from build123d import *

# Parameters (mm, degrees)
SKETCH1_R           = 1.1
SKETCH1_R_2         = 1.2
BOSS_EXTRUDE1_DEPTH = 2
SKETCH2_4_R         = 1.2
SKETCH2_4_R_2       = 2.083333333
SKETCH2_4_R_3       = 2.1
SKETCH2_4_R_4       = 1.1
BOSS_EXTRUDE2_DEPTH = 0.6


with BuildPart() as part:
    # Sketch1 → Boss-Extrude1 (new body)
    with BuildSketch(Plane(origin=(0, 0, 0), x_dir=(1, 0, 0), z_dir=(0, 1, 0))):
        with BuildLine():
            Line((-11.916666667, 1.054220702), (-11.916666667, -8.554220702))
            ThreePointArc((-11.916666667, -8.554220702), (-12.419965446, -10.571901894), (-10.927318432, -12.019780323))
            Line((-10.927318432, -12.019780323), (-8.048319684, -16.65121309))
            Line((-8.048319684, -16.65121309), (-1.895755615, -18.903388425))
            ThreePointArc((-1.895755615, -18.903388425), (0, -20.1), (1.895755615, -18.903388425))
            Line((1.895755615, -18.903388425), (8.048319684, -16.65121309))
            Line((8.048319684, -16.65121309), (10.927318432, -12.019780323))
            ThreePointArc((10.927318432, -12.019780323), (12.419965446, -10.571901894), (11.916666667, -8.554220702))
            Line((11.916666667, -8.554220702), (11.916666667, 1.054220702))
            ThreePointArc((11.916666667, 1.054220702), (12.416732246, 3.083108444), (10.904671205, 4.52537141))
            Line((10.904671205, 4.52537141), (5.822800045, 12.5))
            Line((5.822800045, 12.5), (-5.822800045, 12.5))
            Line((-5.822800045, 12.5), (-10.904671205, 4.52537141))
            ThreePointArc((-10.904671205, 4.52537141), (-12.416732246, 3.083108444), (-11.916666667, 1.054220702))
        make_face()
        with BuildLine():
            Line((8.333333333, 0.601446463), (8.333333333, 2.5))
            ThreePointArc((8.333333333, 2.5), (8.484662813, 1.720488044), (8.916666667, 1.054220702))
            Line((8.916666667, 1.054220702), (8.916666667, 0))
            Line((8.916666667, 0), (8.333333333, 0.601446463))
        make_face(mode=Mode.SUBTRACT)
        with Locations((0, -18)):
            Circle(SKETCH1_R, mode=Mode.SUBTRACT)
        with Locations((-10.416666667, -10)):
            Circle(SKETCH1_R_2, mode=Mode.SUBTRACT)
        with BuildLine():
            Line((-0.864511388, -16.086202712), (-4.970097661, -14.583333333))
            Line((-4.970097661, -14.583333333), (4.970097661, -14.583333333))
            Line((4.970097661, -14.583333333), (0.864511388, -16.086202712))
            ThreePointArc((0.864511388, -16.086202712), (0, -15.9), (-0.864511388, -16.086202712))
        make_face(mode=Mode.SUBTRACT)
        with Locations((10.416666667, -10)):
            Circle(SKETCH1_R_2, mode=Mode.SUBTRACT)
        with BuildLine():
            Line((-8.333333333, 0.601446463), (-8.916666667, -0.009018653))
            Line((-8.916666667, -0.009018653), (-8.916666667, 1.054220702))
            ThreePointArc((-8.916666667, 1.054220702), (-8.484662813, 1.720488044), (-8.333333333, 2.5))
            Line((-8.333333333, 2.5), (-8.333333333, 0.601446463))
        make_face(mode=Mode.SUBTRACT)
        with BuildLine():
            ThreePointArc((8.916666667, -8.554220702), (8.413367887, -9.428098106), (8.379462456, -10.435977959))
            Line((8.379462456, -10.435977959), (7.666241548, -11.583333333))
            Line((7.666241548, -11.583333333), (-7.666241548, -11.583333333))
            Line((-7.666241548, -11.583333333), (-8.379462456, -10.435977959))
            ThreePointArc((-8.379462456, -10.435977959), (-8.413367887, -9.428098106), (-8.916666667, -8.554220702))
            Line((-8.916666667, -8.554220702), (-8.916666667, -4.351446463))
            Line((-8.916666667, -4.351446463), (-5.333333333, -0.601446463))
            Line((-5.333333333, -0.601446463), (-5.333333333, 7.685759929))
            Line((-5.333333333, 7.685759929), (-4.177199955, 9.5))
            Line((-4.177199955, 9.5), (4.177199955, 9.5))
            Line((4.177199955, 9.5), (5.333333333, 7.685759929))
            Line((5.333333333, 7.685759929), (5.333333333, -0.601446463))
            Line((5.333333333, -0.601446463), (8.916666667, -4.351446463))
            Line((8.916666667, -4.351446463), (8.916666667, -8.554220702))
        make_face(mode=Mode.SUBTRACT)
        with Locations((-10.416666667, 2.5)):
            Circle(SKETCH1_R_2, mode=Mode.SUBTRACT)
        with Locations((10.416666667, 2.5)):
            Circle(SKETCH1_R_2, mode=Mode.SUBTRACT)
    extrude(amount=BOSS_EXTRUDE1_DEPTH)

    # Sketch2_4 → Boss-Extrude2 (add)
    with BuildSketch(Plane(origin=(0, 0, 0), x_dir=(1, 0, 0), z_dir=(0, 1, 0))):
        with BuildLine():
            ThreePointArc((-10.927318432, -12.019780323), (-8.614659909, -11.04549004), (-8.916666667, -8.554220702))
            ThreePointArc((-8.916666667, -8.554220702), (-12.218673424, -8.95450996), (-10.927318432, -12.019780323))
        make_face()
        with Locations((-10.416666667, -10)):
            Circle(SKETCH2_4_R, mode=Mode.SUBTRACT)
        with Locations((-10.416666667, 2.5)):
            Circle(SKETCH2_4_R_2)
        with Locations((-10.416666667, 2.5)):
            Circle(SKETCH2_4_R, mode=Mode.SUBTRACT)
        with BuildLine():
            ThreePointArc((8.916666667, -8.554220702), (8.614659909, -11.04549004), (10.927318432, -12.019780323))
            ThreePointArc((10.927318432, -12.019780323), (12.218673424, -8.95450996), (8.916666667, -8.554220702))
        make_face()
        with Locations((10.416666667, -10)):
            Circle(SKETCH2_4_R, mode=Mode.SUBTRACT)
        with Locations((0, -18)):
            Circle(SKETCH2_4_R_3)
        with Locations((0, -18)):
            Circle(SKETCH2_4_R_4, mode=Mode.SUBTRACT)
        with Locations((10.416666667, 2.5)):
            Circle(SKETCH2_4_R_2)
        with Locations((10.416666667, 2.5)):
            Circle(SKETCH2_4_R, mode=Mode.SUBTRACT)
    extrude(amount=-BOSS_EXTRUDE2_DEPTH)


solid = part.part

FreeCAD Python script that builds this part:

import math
import FreeCAD as App
import Part
import Sketcher

doc = App.newDocument("Part")
body = doc.addObject("PartDesign::Body", "Body")

# Sketch on XZ plane
sketch1 = doc.addObject("Sketcher::SketchObject", "Sketch")
body.addObject(sketch1)
sketch1.AttachmentSupport = (doc.XZ_Plane, [""])
sketch1.MapMode = "FlatFace"
sketch1.addGeometry(Part.LineSegment(App.Vector(-11.916667, -1.054221, 0), App.Vector(-11.916667, 8.554221, 0)), False)
sketch1.addGeometry(Part.ArcOfCircle(Part.Circle(App.Vector(-10.416667, 10, 0), App.Vector(0, 0, 1), 2.083333), math.radians(104.188503), math.radians(223.94552)), False)
sketch1.addGeometry(Part.LineSegment(App.Vector(-10.927318, 12.01978, 0), App.Vector(-8.04832, 16.651213, 0)), False)
sketch1.addGeometry(Part.LineSegment(App.Vector(-8.04832, 16.651213, 0), App.Vector(-1.895756, 18.903388, 0)), False)
sketch1.addGeometry(Part.ArcOfCircle(Part.Circle(App.Vector(0, 18, 0), App.Vector(0, 0, 1), 2.1), math.radians(25.479299), math.radians(154.520701)), False)
sketch1.addGeometry(Part.LineSegment(App.Vector(1.895756, 18.903388, 0), App.Vector(8.04832, 16.651213, 0)), False)
sketch1.addGeometry(Part.LineSegment(App.Vector(8.04832, 16.651213, 0), App.Vector(10.927318, 12.01978, 0)), False)
sketch1.addGeometry(Part.ArcOfCircle(Part.Circle(App.Vector(10.416667, 10, 0), App.Vector(0, 0, 1), 2.083333), math.radians(-43.94552), math.radians(75.811497)), False)
sketch1.addGeometry(Part.LineSegment(App.Vector(11.916667, 8.554221, 0), App.Vector(11.916667, -1.054221, 0)), False)
sketch1.addGeometry(Part.ArcOfCircle(Part.Circle(App.Vector(10.416667, -2.5, 0), App.Vector(0, 0, 1), 2.083333), math.radians(-76.453044), math.radians(43.94552)), False)
sketch1.addGeometry(Part.LineSegment(App.Vector(10.904671, -4.525371, 0), App.Vector(5.8228, -12.5, 0)), False)
sketch1.addGeometry(Part.LineSegment(App.Vector(5.8228, -12.5, 0), App.Vector(-5.8228, -12.5, 0)), False)
sketch1.addGeometry(Part.LineSegment(App.Vector(-5.8228, -12.5, 0), App.Vector(-10.904671, -4.525371, 0)), False)
sketch1.addGeometry(Part.ArcOfCircle(Part.Circle(App.Vector(-10.416667, -2.5, 0), App.Vector(0, 0, 1), 2.083333), math.radians(136.05448), math.radians(256.453044)), False)
sketch1.addGeometry(Part.Circle(App.Vector(-10.416667, 10, 0), App.Vector(0, 0, 1), 1.2), False)
sketch1.addGeometry(Part.Circle(App.Vector(0, 18, 0), App.Vector(0, 0, 1), 1.1), False)
sketch1.addGeometry(Part.ArcOfCircle(Part.Circle(App.Vector(0, 18, 0), App.Vector(0, 0, 1), 2.1), math.radians(-114.309916), math.radians(-65.690084)), False)
sketch1.addGeometry(Part.LineSegment(App.Vector(-0.864511, 16.086203, 0), App.Vector(-4.970098, 14.583333, 0)), False)
sketch1.addGeometry(Part.LineSegment(App.Vector(-4.970098, 14.583333, 0), App.Vector(4.970098, 14.583333, 0)), False)
sketch1.addGeometry(Part.LineSegment(App.Vector(4.970098, 14.583333, 0), App.Vector(0.864511, 16.086203, 0)), False)
sketch1.addGeometry(Part.Circle(App.Vector(10.416667, 10, 0), App.Vector(0, 0, 1), 1.2), False)
sketch1.addGeometry(Part.LineSegment(App.Vector(-8.333333, -2.5, 0), App.Vector(-8.333333, -0.601446, 0)), False)
sketch1.addGeometry(Part.LineSegment(App.Vector(-8.333333, -0.601446, 0), App.Vector(-8.916667, 0.009019, 0)), False)
sketch1.addGeometry(Part.LineSegment(App.Vector(-8.916667, 0.009019, 0), App.Vector(-8.916667, -1.054221, 0)), False)
sketch1.addGeometry(Part.ArcOfCircle(Part.Circle(App.Vector(-10.416667, -2.5, 0), App.Vector(0, 0, 1), 2.083333), math.radians(0), math.radians(43.94552)), False)
sketch1.addGeometry(Part.Circle(App.Vector(-10.416667, -2.5, 0), App.Vector(0, 0, 1), 1.2), False)
sketch1.addGeometry(Part.LineSegment(App.Vector(8.916667, 4.351446, 0), App.Vector(8.916667, 8.554221, 0)), False)
sketch1.addGeometry(Part.ArcOfCircle(Part.Circle(App.Vector(10.416667, 10, 0), App.Vector(0, 0, 1), 2.083333), math.radians(167.920458), math.radians(223.94552)), False)
sketch1.addGeometry(Part.LineSegment(App.Vector(8.379462, 10.435978, 0), App.Vector(7.666242, 11.583333, 0)), False)
sketch1.addGeometry(Part.LineSegment(App.Vector(7.666242, 11.583333, 0), App.Vector(-7.666242, 11.583333, 0)), False)
sketch1.addGeometry(Part.LineSegment(App.Vector(-7.666242, 11.583333, 0), App.Vector(-8.379462, 10.435978, 0)), False)
sketch1.addGeometry(Part.ArcOfCircle(Part.Circle(App.Vector(-10.416667, 10, 0), App.Vector(0, 0, 1), 2.083333), math.radians(-43.94552), math.radians(12.079542)), False)
sketch1.addGeometry(Part.LineSegment(App.Vector(-8.916667, 8.554221, 0), App.Vector(-8.916667, 4.351446, 0)), False)
sketch1.addGeometry(Part.LineSegment(App.Vector(-8.916667, 4.351446, 0), App.Vector(-5.333333, 0.601446, 0)), False)
sketch1.addGeometry(Part.LineSegment(App.Vector(-5.333333, 0.601446, 0), App.Vector(-5.333333, -7.68576, 0)), False)
sketch1.addGeometry(Part.LineSegment(App.Vector(-5.333333, -7.68576, 0), App.Vector(-4.1772, -9.5, 0)), False)
sketch1.addGeometry(Part.LineSegment(App.Vector(-4.1772, -9.5, 0), App.Vector(4.1772, -9.5, 0)), False)
sketch1.addGeometry(Part.LineSegment(App.Vector(4.1772, -9.5, 0), App.Vector(5.333333, -7.68576, 0)), False)
sketch1.addGeometry(Part.LineSegment(App.Vector(5.333333, -7.68576, 0), App.Vector(5.333333, 0.601446, 0)), False)
sketch1.addGeometry(Part.LineSegment(App.Vector(5.333333, 0.601446, 0), App.Vector(8.916667, 4.351446, 0)), False)
sketch1.addGeometry(Part.LineSegment(App.Vector(8.916667, 0, 0), App.Vector(8.333333, -0.601446, 0)), False)
sketch1.addGeometry(Part.LineSegment(App.Vector(8.333333, -0.601446, 0), App.Vector(8.333333, -2.5, 0)), False)
sketch1.addGeometry(Part.ArcOfCircle(Part.Circle(App.Vector(10.416667, -2.5, 0), App.Vector(0, 0, 1), 2.083333), math.radians(136.05448), math.radians(180)), False)
sketch1.addGeometry(Part.LineSegment(App.Vector(8.916667, -1.054221, 0), App.Vector(8.916667, 0, 0)), False)
sketch1.addGeometry(Part.Circle(App.Vector(10.416667, -2.5, 0), App.Vector(0, 0, 1), 1.2), False)
sketch1.addConstraint(Sketcher.Constraint("Coincident", 0, 2, 1, 2))
sketch1.addConstraint(Sketcher.Constraint("Coincident", 1, 1, 2, 1))
sketch1.addConstraint(Sketcher.Constraint("Coincident", 2, 2, 3, 1))
sketch1.addConstraint(Sketcher.Constraint("Coincident", 3, 2, 4, 2))
sketch1.addConstraint(Sketcher.Constraint("Coincident", 4, 1, 5, 1))
sketch1.addConstraint(Sketcher.Constraint("Coincident", 5, 2, 6, 1))
sketch1.addConstraint(Sketcher.Constraint("Coincident", 6, 2, 7, 2))
sketch1.addConstraint(Sketcher.Constraint("Coincident", 7, 1, 8, 1))
sketch1.addConstraint(Sketcher.Constraint("Coincident", 8, 2, 9, 2))
sketch1.addConstraint(Sketcher.Constraint("Coincident", 9, 1, 10, 1))
sketch1.addConstraint(Sketcher.Constraint("Coincident", 10, 2, 11, 1))
sketch1.addConstraint(Sketcher.Constraint("Coincident", 11, 2, 12, 1))
sketch1.addConstraint(Sketcher.Constraint("Coincident", 12, 2, 13, 2))
sketch1.addConstraint(Sketcher.Constraint("Coincident", 13, 1, 0, 1))
sketch1.addConstraint(Sketcher.Constraint("Coincident", 16, 1, 17, 1))
sketch1.addConstraint(Sketcher.Constraint("Coincident", 17, 2, 18, 1))
sketch1.addConstraint(Sketcher.Constraint("Coincident", 18, 2, 19, 1))
sketch1.addConstraint(Sketcher.Constraint("Coincident", 19, 2, 16, 2))
sketch1.addConstraint(Sketcher.Constraint("Coincident", 21, 2, 22, 1))
sketch1.addConstraint(Sketcher.Constraint("Coincident", 22, 2, 23, 1))
sketch1.addConstraint(Sketcher.Constraint("Coincident", 23, 2, 24, 2))
sketch1.addConstraint(Sketcher.Constraint("Tangent", 24, 1, 21, 1))
sketch1.addConstraint(Sketcher.Constraint("Coincident", 26, 2, 27, 2))
sketch1.addConstraint(Sketcher.Constraint("Coincident", 27, 1, 28, 1))
sketch1.addConstraint(Sketcher.Constraint("Coincident", 28, 2, 29, 1))
sketch1.addConstraint(Sketcher.Constraint("Coincident", 29, 2, 30, 1))
sketch1.addConstraint(Sketcher.Constraint("Coincident", 30, 2, 31, 2))
sketch1.addConstraint(Sketcher.Constraint("Coincident", 31, 1, 32, 1))
sketch1.addConstraint(Sketcher.Constraint("Coincident", 32, 2, 33, 1))
sketch1.addConstraint(Sketcher.Constraint("Coincident", 33, 2, 34, 1))
sketch1.addConstraint(Sketcher.Constraint("Coincident", 34, 2, 35, 1))
sketch1.addConstraint(Sketcher.Constraint("Coincident", 35, 2, 36, 1))
sketch1.addConstraint(Sketcher.Constraint("Coincident", 36, 2, 37, 1))
sketch1.addConstraint(Sketcher.Constraint("Coincident", 37, 2, 38, 1))
sketch1.addConstraint(Sketcher.Constraint("Coincident", 38, 2, 39, 1))
sketch1.addConstraint(Sketcher.Constraint("Coincident", 39, 2, 26, 1))
sketch1.addConstraint(Sketcher.Constraint("Coincident", 40, 2, 41, 1))
sketch1.addConstraint(Sketcher.Constraint("Tangent", 41, 2, 42, 2))
sketch1.addConstraint(Sketcher.Constraint("Coincident", 42, 1, 43, 1))
sketch1.addConstraint(Sketcher.Constraint("Coincident", 43, 2, 40, 1))
sketch1.addConstraint(Sketcher.Constraint("Vertical", 0))
sketch1.addConstraint(Sketcher.Constraint("Vertical", 8))
sketch1.addConstraint(Sketcher.Constraint("Horizontal", 11))
sketch1.addConstraint(Sketcher.Constraint("Horizontal", 18))
sketch1.addConstraint(Sketcher.Constraint("Vertical", 21))
sketch1.addConstraint(Sketcher.Constraint("Vertical", 23))
sketch1.addConstraint(Sketcher.Constraint("Vertical", 26))
sketch1.addConstraint(Sketcher.Constraint("Horizontal", 29))
sketch1.addConstraint(Sketcher.Constraint("Vertical", 32))
sketch1.addConstraint(Sketcher.Constraint("Vertical", 34))
sketch1.addConstraint(Sketcher.Constraint("Horizontal", 36))
sketch1.addConstraint(Sketcher.Constraint("Vertical", 38))
sketch1.addConstraint(Sketcher.Constraint("Vertical", 41))
sketch1.addConstraint(Sketcher.Constraint("Vertical", 43))
sketch1.addConstraint(Sketcher.Constraint("Coincident", 14, 3, 1, 3))
sketch1.addConstraint(Sketcher.Constraint("Coincident", 15, 3, 4, 3))
sketch1.addConstraint(Sketcher.Constraint("Coincident", 16, 3, 4, 3))
sketch1.addConstraint(Sketcher.Constraint("Coincident", 20, 3, 7, 3))
sketch1.addConstraint(Sketcher.Constraint("Coincident", 24, 3, 13, 3))
sketch1.addConstraint(Sketcher.Constraint("Coincident", 25, 3, 13, 3))
sketch1.addConstraint(Sketcher.Constraint("Coincident", 27, 3, 7, 3))
sketch1.addConstraint(Sketcher.Constraint("Coincident", 31, 3, 1, 3))
sketch1.addConstraint(Sketcher.Constraint("Coincident", 42, 3, 9, 3))
sketch1.addConstraint(Sketcher.Constraint("Coincident", 44, 3, 9, 3))
sketch1.addConstraint(Sketcher.Constraint("Equal", 1, 7))
sketch1.addConstraint(Sketcher.Constraint("Equal", 7, 9))
sketch1.addConstraint(Sketcher.Constraint("Equal", 9, 13))
sketch1.addConstraint(Sketcher.Constraint("Equal", 4, 16))
sketch1.addConstraint(Sketcher.Constraint("Equal", 14, 20))
sketch1.addConstraint(Sketcher.Constraint("Equal", 13, 24))
sketch1.addConstraint(Sketcher.Constraint("Equal", 20, 25))
sketch1.addConstraint(Sketcher.Constraint("Equal", 24, 27))
sketch1.addConstraint(Sketcher.Constraint("Equal", 27, 31))
sketch1.addConstraint(Sketcher.Constraint("Equal", 31, 42))
sketch1.addConstraint(Sketcher.Constraint("Equal", 25, 44))
sketch1.addConstraint(Sketcher.Constraint("Symmetric", 1, 3, 7, 3, -2))
sketch1.addConstraint(Sketcher.Constraint("Symmetric", 9, 3, 13, 3, -2))
sketch1.addConstraint(Sketcher.Constraint("Symmetric", 3, 2, 4, 1, -2))
sketch1.addConstraint(Sketcher.Constraint("Symmetric", 2, 2, 5, 2, -2))
sketch1.addConstraint(Sketcher.Constraint("Symmetric", 34, 2, 37, 2, -2))
sketch1.addConstraint(Sketcher.Constraint("Symmetric", 32, 2, 39, 2, -2))
sketch1.addConstraint(Sketcher.Constraint("PointOnObject", 43, 2, -1))
sketch1.addConstraint(Sketcher.Constraint("Parallel", 3, 17))
sketch1.addConstraint(Sketcher.Constraint("Parallel", 5, 19))
sketch1.addConstraint(Sketcher.Constraint("Parallel", 6, 28))
sketch1.addConstraint(Sketcher.Constraint("Parallel", 2, 30))
sketch1.addConstraint(Sketcher.Constraint("Parallel", 22, 33))
sketch1.addConstraint(Sketcher.Constraint("Parallel", 12, 35))
sketch1.addConstraint(Sketcher.Constraint("Parallel", 10, 37))
sketch1.addConstraint(Sketcher.Constraint("Horizontal", 1, 1, 6, 2))
sketch1.addConstraint(Sketcher.Constraint("Horizontal", 0, 2, 7, 1))
sketch1.addConstraint(Sketcher.Constraint("Horizontal", 9, 1, 12, 2))
sketch1.addConstraint(Sketcher.Constraint("Horizontal", 16, 1, 19, 2))
sketch1.addConstraint(Sketcher.Constraint("Horizontal", 13, 1, 23, 2))
sketch1.addConstraint(Sketcher.Constraint("Horizontal", 7, 1, 26, 2))
sketch1.addConstraint(Sketcher.Constraint("Horizontal", 27, 1, 30, 2))
sketch1.addConstraint(Sketcher.Constraint("Horizontal", 33, 2, 38, 2))
sketch1.addConstraint(Sketcher.Constraint("Horizontal", 21, 2, 40, 2))
sketch1.addConstraint(Sketcher.Constraint("Horizontal", 23, 2, 42, 1))
sketch1.addConstraint(Sketcher.Constraint("Vertical", 7, 3, 9, 3))
sketch1.addConstraint(Sketcher.Constraint("Equal", 10, 12))
sketch1.addConstraint(Sketcher.Constraint("Diameter", 14, 2.4))
sketch1.addConstraint(Sketcher.Constraint("Diameter", 15, 2.2))
sketch1.addConstraint(Sketcher.Constraint("Radius", 4, 2.1))
sketch1.addConstraint(Sketcher.Constraint("DistanceY", -1, 1, 1, 3, 10.0))
sketch1.addConstraint(Sketcher.Constraint("DistanceY", -1, 1, 4, 3, 18.0))
sketch1.addConstraint(Sketcher.Constraint("DistanceY", 10, 2, 42, 3, 10.0))
sketch1.addConstraint(Sketcher.Constraint("DistanceX", 13, 1, 22, 2, 3.0))
sketch1.addConstraint(Sketcher.Constraint("DistanceY", 29, 2, 17, 2, 3.0))
sketch1.addConstraint(Sketcher.Constraint("DistanceX", 21, 2, 33, 2, 3.0))
sketch1.addConstraint(Sketcher.Constraint("DistanceY", 11, 2, 35, 2, 3.0))
sketch1.addConstraint(Sketcher.Constraint("DistanceY", 9, 3, -1, 1, 2.5))
sketch1.addConstraint(Sketcher.Constraint("DistanceY", 33, 2, 32, 2, 3.75))
sketch1.addConstraint(Sketcher.Constraint("DistanceX", 11, 2, 11, 1, 11.6456))
sketch1.addConstraint(Sketcher.Constraint("DistanceX", 36, 1, 36, 2, 8.3544))
sketch1.addConstraint(Sketcher.Constraint("Radius", 1, 2.083333))
sketch1.addConstraint(Sketcher.Constraint("DistanceX", 1, 1, 2, 2, 2.878999))
sketch1.addConstraint(Sketcher.Constraint("DistanceY", 23, 2, 23, 1, 1.063239))
sketch1.addConstraint(Sketcher.Constraint("Distance", 2, 5.45333))
sketch1.addConstraint(Sketcher.Constraint("Distance", 3, 6.551819))
sketch1.addConstraint(Sketcher.Constraint("Distance", 10, 9.456221))
sketch1.addConstraint(Sketcher.Constraint("Distance", 17, 4.372008))
sketch1.addConstraint(Sketcher.Constraint("DistanceX", 18, 1, 18, 2, 9.940195))
sketch1.addConstraint(Sketcher.Constraint("DistanceX", 29, 2, 29, 1, 15.332483))
sketch1.addConstraint(Sketcher.Constraint("DistanceY", 26, 1, 26, 2, 4.202774))
sketch1.addConstraint(Sketcher.Constraint("DistanceY", 34, 2, 34, 1, 8.287206))
sketch1.addConstraint(Sketcher.Constraint("DistanceX", 1, 1, -1, 1, 10.927318))
pad1 = doc.addObject("PartDesign::Pad", "Pad")
body.addObject(pad1)
pad1.Profile = sketch1
pad1.Length = 2
pad1.Reversed = True

# Sketch on XZ plane
sketch2 = doc.addObject("Sketcher::SketchObject", "Sketch001")
body.addObject(sketch2)
sketch2.AttachmentSupport = (doc.XZ_Plane, [""])
sketch2.MapMode = "FlatFace"
sketch2.addGeometry(Part.ArcOfCircle(Part.Circle(App.Vector(-10.416667, 10, 0), App.Vector(0, 0, 1), 2.083333), math.radians(-43.94552), math.radians(104.188503)), False)
sketch2.addGeometry(Part.ArcOfCircle(Part.Circle(App.Vector(-10.416667, 10, 0), App.Vector(0, 0, 1), 2.083333), math.radians(104.188503), math.radians(316.05448)), False)
sketch2.addGeometry(Part.Circle(App.Vector(-10.416667, 10, 0), App.Vector(0, 0, 1), 1.2), False)
sketch2.addGeometry(Part.Circle(App.Vector(-10.416667, -2.5, 0), App.Vector(0, 0, 1), 2.083333), False)
sketch2.addGeometry(Part.Circle(App.Vector(-10.416667, -2.5, 0), App.Vector(0, 0, 1), 1.2), False)
sketch2.addGeometry(Part.ArcOfCircle(Part.Circle(App.Vector(10.416667, 10, 0), App.Vector(0, 0, 1), 2.083333), math.radians(75.811497), math.radians(223.94552)), False)
sketch2.addGeometry(Part.ArcOfCircle(Part.Circle(App.Vector(10.416667, 10, 0), App.Vector(0, 0, 1), 2.083333), math.radians(-136.05448), math.radians(75.811497)), False)
sketch2.addGeometry(Part.Circle(App.Vector(10.416667, 10, 0), App.Vector(0, 0, 1), 1.2), False)
sketch2.addGeometry(Part.Circle(App.Vector(0, 18, 0), App.Vector(0, 0, 1), 2.1), False)
sketch2.addGeometry(Part.Circle(App.Vector(0, 18, 0), App.Vector(0, 0, 1), 1.1), False)
sketch2.addGeometry(Part.Circle(App.Vector(10.416667, -2.5, 0), App.Vector(0, 0, 1), 2.083333), False)
sketch2.addGeometry(Part.Circle(App.Vector(10.416667, -2.5, 0), App.Vector(0, 0, 1), 1.2), False)
sketch2.addConstraint(Sketcher.Constraint("Tangent", 0, 1, 1, 2))
sketch2.addConstraint(Sketcher.Constraint("Coincident", 1, 1, 0, 2))
sketch2.addConstraint(Sketcher.Constraint("Tangent", 5, 1, 6, 2))
sketch2.addConstraint(Sketcher.Constraint("Coincident", 6, 1, 5, 2))
sketch2.addConstraint(Sketcher.Constraint("Coincident", 2, 3, 0, 3))
sketch2.addConstraint(Sketcher.Constraint("Coincident", 4, 3, 3, 3))
sketch2.addConstraint(Sketcher.Constraint("Coincident", 7, 3, 5, 3))
sketch2.addConstraint(Sketcher.Constraint("Coincident", 9, 3, 8, 3))
sketch2.addConstraint(Sketcher.Constraint("Coincident", 11, 3, 10, 3))
sketch2.addConstraint(Sketcher.Constraint("Equal", 1, 3))
sketch2.addConstraint(Sketcher.Constraint("Equal", 2, 4))
sketch2.addConstraint(Sketcher.Constraint("Equal", 3, 5))
sketch2.addConstraint(Sketcher.Constraint("Equal", 4, 7))
sketch2.addConstraint(Sketcher.Constraint("Equal", 6, 10))
sketch2.addConstraint(Sketcher.Constraint("Equal", 7, 11))
sketch2.addConstraint(Sketcher.Constraint("Symmetric", 0, 3, 5, 3, -2))
sketch2.addConstraint(Sketcher.Constraint("Symmetric", 3, 3, 10, 3, -2))
sketch2.addConstraint(Sketcher.Constraint("PointOnObject", 8, 3, -2))
sketch2.addConstraint(Sketcher.Constraint("Horizontal", 1, 1, 5, 1))
sketch2.addConstraint(Sketcher.Constraint("Horizontal", 0, 1, 6, 1))
sketch2.addConstraint(Sketcher.Constraint("Vertical", 2, 3, 3, 3))
sketch2.addConstraint(Sketcher.Constraint("Diameter", 2, 2.4))
sketch2.addConstraint(Sketcher.Constraint("Diameter", 8, 4.2))
sketch2.addConstraint(Sketcher.Constraint("Diameter", 9, 2.2))
sketch2.addConstraint(Sketcher.Constraint("DistanceY", -1, 1, 0, 3, 10.0))
sketch2.addConstraint(Sketcher.Constraint("DistanceY", -1, 1, 8, 3, 18.0))
sketch2.addConstraint(Sketcher.Constraint("DistanceY", 3, 3, -1, 1, 2.5))
sketch2.addConstraint(Sketcher.Constraint("DistanceX", 0, 3, 0, 1, 1.5))
sketch2.addConstraint(Sketcher.Constraint("Diameter", 3, 4.166667))
sketch2.addConstraint(Sketcher.Constraint("DistanceX", 1, 1, -1, 1, 10.927318))
sketch2.addConstraint(Sketcher.Constraint("DistanceY", -1, 1, 1, 1, 12.01978))
pad2 = doc.addObject("PartDesign::Pad", "Pad001")
body.addObject(pad2)
pad2.Profile = sketch2
pad2.Length = 0.6

doc.recompute()
